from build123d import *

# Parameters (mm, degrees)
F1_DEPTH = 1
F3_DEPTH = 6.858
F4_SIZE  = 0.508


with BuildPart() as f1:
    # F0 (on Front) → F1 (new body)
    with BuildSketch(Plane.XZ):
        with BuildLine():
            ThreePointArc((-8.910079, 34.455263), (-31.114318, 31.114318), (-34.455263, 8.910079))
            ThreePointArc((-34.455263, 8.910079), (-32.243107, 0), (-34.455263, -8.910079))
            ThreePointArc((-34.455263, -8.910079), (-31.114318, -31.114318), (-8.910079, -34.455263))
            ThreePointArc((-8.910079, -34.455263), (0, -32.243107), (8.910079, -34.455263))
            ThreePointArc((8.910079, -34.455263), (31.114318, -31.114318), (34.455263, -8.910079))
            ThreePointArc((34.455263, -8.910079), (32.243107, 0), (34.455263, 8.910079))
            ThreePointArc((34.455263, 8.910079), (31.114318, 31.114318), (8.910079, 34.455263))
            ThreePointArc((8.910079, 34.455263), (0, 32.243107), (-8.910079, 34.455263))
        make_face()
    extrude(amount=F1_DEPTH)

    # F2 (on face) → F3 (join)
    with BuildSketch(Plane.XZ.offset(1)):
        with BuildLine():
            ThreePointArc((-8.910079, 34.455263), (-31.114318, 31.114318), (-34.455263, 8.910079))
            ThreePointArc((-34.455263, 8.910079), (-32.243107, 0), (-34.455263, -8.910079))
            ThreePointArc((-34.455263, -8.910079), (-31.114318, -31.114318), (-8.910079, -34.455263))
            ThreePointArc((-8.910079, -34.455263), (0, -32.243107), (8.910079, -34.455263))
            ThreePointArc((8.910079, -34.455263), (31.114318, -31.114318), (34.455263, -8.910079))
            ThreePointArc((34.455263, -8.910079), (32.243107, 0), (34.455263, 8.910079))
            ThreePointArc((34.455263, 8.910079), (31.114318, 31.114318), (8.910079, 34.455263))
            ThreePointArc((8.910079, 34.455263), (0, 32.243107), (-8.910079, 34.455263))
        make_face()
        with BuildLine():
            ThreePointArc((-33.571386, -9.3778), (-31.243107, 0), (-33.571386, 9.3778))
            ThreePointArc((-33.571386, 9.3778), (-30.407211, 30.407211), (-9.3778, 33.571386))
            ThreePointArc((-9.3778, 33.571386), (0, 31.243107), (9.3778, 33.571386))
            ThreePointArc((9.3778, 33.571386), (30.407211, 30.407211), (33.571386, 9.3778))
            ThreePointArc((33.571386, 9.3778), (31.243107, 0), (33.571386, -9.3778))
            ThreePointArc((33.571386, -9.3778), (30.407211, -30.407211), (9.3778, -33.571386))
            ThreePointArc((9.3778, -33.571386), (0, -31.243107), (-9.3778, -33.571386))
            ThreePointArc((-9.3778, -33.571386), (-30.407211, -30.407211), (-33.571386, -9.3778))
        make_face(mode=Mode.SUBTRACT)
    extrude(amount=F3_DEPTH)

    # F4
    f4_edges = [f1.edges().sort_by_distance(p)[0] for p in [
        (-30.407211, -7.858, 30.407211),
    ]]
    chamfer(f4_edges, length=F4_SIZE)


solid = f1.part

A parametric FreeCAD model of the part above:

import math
import FreeCAD as App
import Part
import Sketcher
from FreeCAD import Vector
Q = App.Units.Quantity


def edges_at(feature, points):
    """Names of the edges that pass closest to the given points."""
    edges = feature.Shape.Edges
    near = lambda p: min(range(len(edges)), key=lambda i: edges[i].distToShape(Part.Vertex(*p))[0])
    return sorted({f"Edge{near(p) + 1}" for p in points})

doc = App.newDocument("Part")
params = doc.addObject("Spreadsheet::Sheet", "Params")
for row, (alias, value) in enumerate([
    ("sketch1_radius", "18.900001 mm"),
    ("sketch1_radius2", "19.05 mm"),
    ("pad1_length", "1 mm"),
    ("sketch2_radius", "18.900001 mm"),
    ("sketch2_radius2", "17.9 mm"),
    ("sketch2_radius3", "19.05 mm"),
    ("pad2_length", "6.858 mm"),
    ("chamfer_size", "0.508 mm"),
], start=1):
    params.set(f"A{row}", alias)
    params.set(f"B{row}", "=" + value)
    params.setAlias(f"B{row}", alias)

body = doc.addObject("PartDesign::Body", "Body")

sketch1 = body.newObject("Sketcher::SketchObject", "Sketch")
sketch1.AttachmentSupport = (doc.getObject("XZ_Plane"), [""])
sketch1.MapMode = "FlatFace"
sketch1.addGeometry(Part.ArcOfCircle(Part.Circle(Vector(-17.749999, 17.749999, 0), Vector(0, 0, 1), 18.900001), math.radians(62.11356), math.radians(207.88644)), False)
sketch1.addGeometry(Part.ArcOfCircle(Part.Circle(Vector(-51.293107, 0, 0), Vector(0, 0, 1), 19.05), math.radians(-27.886443), math.radians(27.886443)), False)
sketch1.addGeometry(Part.ArcOfCircle(Part.Circle(Vector(-17.749999, -17.749999, 0), Vector(0, 0, 1), 18.900001), math.radians(152.11356), math.radians(297.88644)), False)
sketch1.addGeometry(Part.ArcOfCircle(Part.Circle(Vector(0, -51.293107, 0), Vector(0, 0, 1), 19.05), math.radians(62.113557), math.radians(117.886443)), False)
sketch1.addGeometry(Part.ArcOfCircle(Part.Circle(Vector(17.749999, -17.749999, 0), Vector(0, 0, 1), 18.900001), math.radians(-117.88644), math.radians(27.88644)), False)
sketch1.addGeometry(Part.ArcOfCircle(Part.Circle(Vector(51.293107, 0, 0), Vector(0, 0, 1), 19.05), math.radians(152.113557), math.radians(207.886443)), False)
sketch1.addGeometry(Part.ArcOfCircle(Part.Circle(Vector(17.749999, 17.749999, 0), Vector(0, 0, 1), 18.900001), math.radians(-27.88644), math.radians(117.88644)), False)
sketch1.addGeometry(Part.ArcOfCircle(Part.Circle(Vector(0, 51.293107, 0), Vector(0, 0, 1), 19.05), math.radians(-117.886443), math.radians(-62.113557)), False)
sketch1.addConstraint(Sketcher.Constraint("Tangent", 0, 2, 1, 2))
sketch1.addConstraint(Sketcher.Constraint("Tangent", 1, 1, 2, 1))
sketch1.addConstraint(Sketcher.Constraint("Tangent", 2, 2, 3, 2))
sketch1.addConstraint(Sketcher.Constraint("Tangent", 3, 1, 4, 1))
sketch1.addConstraint(Sketcher.Constraint("Tangent", 4, 2, 5, 2))
sketch1.addConstraint(Sketcher.Constraint("Tangent", 5, 1, 6, 1))
sketch1.addConstraint(Sketcher.Constraint("Tangent", 6, 2, 7, 2))
sketch1.addConstraint(Sketcher.Constraint("Tangent", 7, 1, 0, 1))
sketch1.addConstraint(Sketcher.Constraint("Equal", 0, 2))
sketch1.addConstraint(Sketcher.Constraint("Equal", 1, 3))
sketch1.addConstraint(Sketcher.Constraint("Equal", 2, 4))
sketch1.addConstraint(Sketcher.Constraint("Equal", 3, 5))
sketch1.addConstraint(Sketcher.Constraint("Equal", 4, 6))
sketch1.addConstraint(Sketcher.Constraint("Equal", 5, 7))
sketch1.addConstraint(Sketcher.Constraint("Symmetric", 0, 3, 4, 3, -1, 1))
sketch1.addConstraint(Sketcher.Constraint("Symmetric", 2, 3, 6, 3, -1, 1))
sketch1.addConstraint(Sketcher.Constraint("Symmetric", 2, 3, 4, 3, -2))
sketch1.addConstraint(Sketcher.Constraint("Radius", 0, Q("18.900001 mm")))
sketch1.addConstraint(Sketcher.Constraint("Radius", 1, Q("19.05 mm")))
sketch1.addConstraint(Sketcher.Constraint("DistanceY", 2, 3, 0, 3, Q("35.499999 mm")))
sketch1.addConstraint(Sketcher.Constraint("DistanceX", 2, 3, 4, 3, Q("35.499999 mm")))
sketch1.setExpression("Constraints[17]", "Params.sketch1_radius")
sketch1.setExpression("Constraints[18]", "Params.sketch1_radius2")
pad1 = body.newObject("PartDesign::Pad", "Pad")
pad1.Profile = sketch1
pad1.setExpression("Length", "Params.pad1_length")

sketch2 = body.newObject("Sketcher::SketchObject", "Sketch001")
sketch2.AttachmentSupport = (doc.getObject("XZ_Plane"), [""])
sketch2.MapMode = "FlatFace"
sketch2.AttachmentOffset = App.Placement(Vector(0, 0, 1), App.Rotation())
sketch2.addGeometry(Part.ArcOfCircle(Part.Circle(Vector(-17.749999, 17.749999, 0), Vector(0, 0, 1), 18.900001), math.radians(62.11356), math.radians(207.88644)), False)
sketch2.addGeometry(Part.ArcOfCircle(Part.Circle(Vector(-51.293107, 0, 0), Vector(0, 0, 1), 19.05), math.radians(-27.886443), math.radians(27.886443)), False)
sketch2.addGeometry(Part.ArcOfCircle(Part.Circle(Vector(-17.749999, -17.749999, 0), Vector(0, 0, 1), 18.900001), math.radians(152.11356), math.radians(297.88644)), False)
sketch2.addGeometry(Part.ArcOfCircle(Part.Circle(Vector(0, -51.293107, 0), Vector(0, 0, 1), 19.05), math.radians(62.113557), math.radians(117.886443)), False)
sketch2.addGeometry(Part.ArcOfCircle(Part.Circle(Vector(17.749999, -17.749999, 0), Vector(0, 0, 1), 18.900001), math.radians(-117.88644), math.radians(27.88644)), False)
sketch2.addGeometry(Part.ArcOfCircle(Part.Circle(Vector(51.293107, 0, 0), Vector(0, 0, 1), 19.05), math.radians(152.113557), math.radians(207.886443)), False)
sketch2.addGeometry(Part.ArcOfCircle(Part.Circle(Vector(17.749999, 17.749999, 0), Vector(0, 0, 1), 18.900001), math.radians(-27.88644), math.radians(117.88644)), False)
sketch2.addGeometry(Part.ArcOfCircle(Part.Circle(Vector(0, 51.293107, 0), Vector(0, 0, 1), 19.05), math.radians(-117.886443), math.radians(-62.113557)), False)
sketch2.addGeometry(Part.ArcOfCircle(Part.Circle(Vector(-17.75, -17.75, 0), Vector(0, 0, 1), 17.9), math.radians(152.113559), math.radians(297.886441)), False)
sketch2.addGeometry(Part.ArcOfCircle(Part.Circle(Vector(-51.293113, 0, 0), Vector(0, 0, 1), 20.050006), math.radians(-27.886434), math.radians(27.886434)), False)
sketch2.addGeometry(Part.ArcOfCircle(Part.Circle(Vector(-17.75, 17.75, 0), Vector(0, 0, 1), 17.9), math.radians(62.113559), math.radians(207.886441)), False)
sketch2.addGeometry(Part.ArcOfCircle(Part.Circle(Vector(0, 51.293113, 0), Vector(0, 0, 1), 20.050006), math.radians(-117.886434), math.radians(-62.113566)), False)
sketch2.addGeometry(Part.ArcOfCircle(Part.Circle(Vector(17.75, 17.75, 0), Vector(0, 0, 1), 17.9), math.radians(-27.886441), math.radians(117.886441)), False)
sketch2.addGeometry(Part.ArcOfCircle(Part.Circle(Vector(51.293113, 0, 0), Vector(0, 0, 1), 20.050006), math.radians(152.113566), math.radians(207.886434)), False)
sketch2.addGeometry(Part.ArcOfCircle(Part.Circle(Vector(17.75, -17.75, 0), Vector(0, 0, 1), 17.9), math.radians(-117.886441), math.radians(27.886441)), False)
sketch2.addGeometry(Part.ArcOfCircle(Part.Circle(Vector(0, -51.293113, 0), Vector(0, 0, 1), 20.050006), math.radians(62.113566), math.radians(117.886434)), False)
sketch2.addConstraint(Sketcher.Constraint("Tangent", 0, 2, 1, 2))
sketch2.addConstraint(Sketcher.Constraint("Tangent", 1, 1, 2, 1))
sketch2.addConstraint(Sketcher.Constraint("Tangent", 2, 2, 3, 2))
sketch2.addConstraint(Sketcher.Constraint("Tangent", 3, 1, 4, 1))
sketch2.addConstraint(Sketcher.Constraint("Tangent", 4, 2, 5, 2))
sketch2.addConstraint(Sketcher.Constraint("Tangent", 5, 1, 6, 1))
sketch2.addConstraint(Sketcher.Constraint("Tangent", 6, 2, 7, 2))
sketch2.addConstraint(Sketcher.Constraint("Tangent", 7, 1, 0, 1))
sketch2.addConstraint(Sketcher.Constraint("Tangent", 8, 1, 9, 1))
sketch2.addConstraint(Sketcher.Constraint("Tangent", 9, 2, 10, 2))
sketch2.addConstraint(Sketcher.Constraint("Tangent", 10, 1, 11, 1))
sketch2.addConstraint(Sketcher.Constraint("Tangent", 11, 2, 12, 2))
sketch2.addConstraint(Sketcher.Constraint("Tangent", 12, 1, 13, 1))
sketch2.addConstraint(Sketcher.Constraint("Tangent", 13, 2, 14, 2))
sketch2.addConstraint(Sketcher.Constraint("Tangent", 14, 1, 15, 1))
sketch2.addConstraint(Sketcher.Constraint("Tangent", 15, 2, 8, 2))
sketch2.addConstraint(Sketcher.Constraint("Coincident", 8, 3, 2, 3))
sketch2.addConstraint(Sketcher.Constraint("Coincident", 9, 3, 1, 3))
sketch2.addConstraint(Sketcher.Constraint("Coincident", 10, 3, 0, 3))
sketch2.addConstraint(Sketcher.Constraint("Coincident", 11, 3, 7, 3))
sketch2.addConstraint(Sketcher.Constraint("Coincident", 12, 3, 6, 3))
sketch2.addConstraint(Sketcher.Constraint("Coincident", 13, 3, 5, 3))
sketch2.addConstraint(Sketcher.Constraint("Coincident", 14, 3, 4, 3))
sketch2.addConstraint(Sketcher.Constraint("Equal", 0, 2))
sketch2.addConstraint(Sketcher.Constraint("Equal", 1, 3))
sketch2.addConstraint(Sketcher.Constraint("Equal", 2, 4))
sketch2.addConstraint(Sketcher.Constraint("Equal", 3, 5))
sketch2.addConstraint(Sketcher.Constraint("Equal", 4, 6))
sketch2.addConstraint(Sketcher.Constraint("Equal", 5, 7))
sketch2.addConstraint(Sketcher.Constraint("Equal", 13, 15))
sketch2.addConstraint(Sketcher.Constraint("Symmetric", 0, 3, 4, 3, -1, 1))
sketch2.addConstraint(Sketcher.Constraint("Symmetric", 2, 3, 6, 3, -1, 1))
sketch2.addConstraint(Sketcher.Constraint("Symmetric", 2, 3, 4, 3, -2))
sketch2.addConstraint(Sketcher.Constraint("Radius", 0, Q("18.900001 mm")))
sketch2.addConstraint(Sketcher.Constraint("Radius", 8, Q("17.9 mm")))
sketch2.addConstraint(Sketcher.Constraint("Radius", 1, Q("19.05 mm")))
sketch2.addConstraint(Sketcher.Constraint("DistanceY", 2, 3, 0, 3, Q("35.499999 mm")))
sketch2.addConstraint(Sketcher.Constraint("DistanceX", 2, 3, 4, 3, Q("35.499999 mm")))
sketch2.setExpression("Constraints[33]", "Params.sketch2_radius")
sketch2.setExpression("Constraints[34]", "Params.sketch2_radius2")
sketch2.setExpression("Constraints[35]", "Params.sketch2_radius3")
pad2 = body.newObject("PartDesign::Pad", "Pad001")
pad2.Profile = sketch2
pad2.setExpression("Length", "Params.pad2_length")
doc.recompute()

chamfer = body.newObject("PartDesign::Chamfer", "Chamfer")
chamfer.Base = (pad2, edges_at(pad2, [(-30.407, -7.858, 30.407)]))
chamfer.setExpression("Size", "Params.chamfer_size")

doc.recompute()
